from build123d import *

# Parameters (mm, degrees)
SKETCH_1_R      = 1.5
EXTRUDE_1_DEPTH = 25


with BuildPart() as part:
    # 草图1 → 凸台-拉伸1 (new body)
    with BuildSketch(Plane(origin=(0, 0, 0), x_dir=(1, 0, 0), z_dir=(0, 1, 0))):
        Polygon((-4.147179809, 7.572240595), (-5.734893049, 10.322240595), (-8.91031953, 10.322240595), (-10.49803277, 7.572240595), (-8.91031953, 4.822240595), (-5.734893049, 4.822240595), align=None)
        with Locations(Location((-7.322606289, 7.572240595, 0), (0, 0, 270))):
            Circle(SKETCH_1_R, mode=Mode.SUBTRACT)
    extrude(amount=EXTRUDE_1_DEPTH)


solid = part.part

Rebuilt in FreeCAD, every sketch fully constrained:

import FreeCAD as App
import Part
import Sketcher
Q = App.Units.Quantity


def add_polygon(sketch, points):
    """Adds a closed chain of lines whose ends are joined by coincident constraints."""
    first, n = sketch.GeometryCount, len(points)
    for a, b in zip(points, points[1:] + points[:1]):
        sketch.addGeometry(Part.LineSegment(App.Vector(*a, 0), App.Vector(*b, 0)), False)
    for i in range(n):
        sketch.addConstraint(Sketcher.Constraint("Coincident", first + i, 2, first + (i + 1) % n, 1))

doc = App.newDocument("Part")
body = doc.addObject("PartDesign::Body", "Body")

sketch1 = body.newObject("Sketcher::SketchObject", "Sketch")
sketch1.AttachmentSupport = (doc.getObject("XZ_Plane"), [""])
sketch1.MapMode = "FlatFace"
add_polygon(sketch1, [(-4.1, -7.6), (-5.7, -10.3), (-8.9, -10.3), (-10.5, -7.6), (-8.9, -4.8), (-5.7, -4.8)])
sketch1.addGeometry(Part.Circle(App.Vector(-7.3, -7.6, 0), App.Vector(0, 0, 1), 1.5), False)
sketch1.addConstraint(Sketcher.Constraint("Horizontal", 1))
sketch1.addConstraint(Sketcher.Constraint("Horizontal", 4))
sketch1.addConstraint(Sketcher.Constraint("Parallel", 0, 3))
sketch1.addConstraint(Sketcher.Constraint("Parallel", 2, 5))
sketch1.addConstraint(Sketcher.Constraint("Horizontal", 6, 3, 2, 2))
sketch1.addConstraint(Sketcher.Constraint("Horizontal", 2, 2, 5, 2))
sketch1.addConstraint(Sketcher.Constraint("Vertical", 1, 2, 3, 2))
sketch1.addConstraint(Sketcher.Constraint("Vertical", 0, 2, 4, 2))
sketch1.addConstraint(Sketcher.Constraint("Diameter", 6, 3.0))
sketch1.addConstraint(Sketcher.Constraint("Angle", 0, Q("-120 deg")))
sketch1.addConstraint(Sketcher.Constraint("DistanceY", 1, 2, 3, 2, 5.5))
sketch1.addConstraint(Sketcher.Constraint("DistanceX", 1, 2, 1, 1, 3.175426))
sketch1.addConstraint(Sketcher.Constraint("DistanceY", 6, 3, -1, 1, 7.572241))
sketch1.addConstraint(Sketcher.Constraint("DistanceX", 1, 2, -1, 1, 8.91032))
sketch1.addConstraint(Sketcher.Constraint("DistanceX", 6, 3, -1, 1, 7.322606))
pad1 = body.newObject("PartDesign::Pad", "Pad")
pad1.Profile = sketch1
pad1.Length = 25
pad1.Reversed = True

doc.recompute()
